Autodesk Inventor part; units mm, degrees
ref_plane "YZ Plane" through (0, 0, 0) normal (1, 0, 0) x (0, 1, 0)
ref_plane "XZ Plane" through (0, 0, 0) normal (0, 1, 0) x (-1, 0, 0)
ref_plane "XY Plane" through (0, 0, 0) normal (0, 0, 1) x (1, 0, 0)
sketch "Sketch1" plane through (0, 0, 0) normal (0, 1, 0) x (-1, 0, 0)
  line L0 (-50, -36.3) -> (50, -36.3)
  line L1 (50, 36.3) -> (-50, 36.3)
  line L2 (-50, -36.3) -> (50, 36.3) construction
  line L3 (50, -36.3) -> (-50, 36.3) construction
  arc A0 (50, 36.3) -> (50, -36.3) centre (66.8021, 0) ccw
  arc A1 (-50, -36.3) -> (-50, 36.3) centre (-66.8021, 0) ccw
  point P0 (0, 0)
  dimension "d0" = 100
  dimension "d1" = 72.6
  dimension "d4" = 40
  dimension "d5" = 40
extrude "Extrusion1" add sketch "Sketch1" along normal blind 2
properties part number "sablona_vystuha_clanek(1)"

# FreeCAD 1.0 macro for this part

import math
import FreeCAD as App
import Part
import Sketcher

V = App.Vector

doc = App.newDocument("Part")
body = doc.addObject("PartDesign::Body", "Body")

# Sketch on XZ plane
sketch1 = body.newObject("Sketcher::SketchObject", "Sketch")
sketch1.AttachmentSupport = (doc.getObject("XZ_Plane"), [""])
sketch1.MapMode = "FlatFace"
sketch1.addGeometry([
    Part.ArcOfCircle(Part.Circle(V(66.8021, 0, 0), V(0, 0, 1), 40.000007), math.radians(114.837897), math.radians(245.162103)),
    Part.LineSegment(V(50, -36.3, 0), V(-50, -36.3, 0)),
    Part.ArcOfCircle(Part.Circle(V(-66.8021, 0, 0), V(0, 0, 1), 40.000007), math.radians(-65.162103), math.radians(65.162103)),
    Part.LineSegment(V(-50, 36.3, 0), V(50, 36.3, 0)),
], False)
sketch1.addConstraint([
    Sketcher.Constraint("Coincident", 0, 2, 1, 1),
    Sketcher.Constraint("Coincident", 1, 2, 2, 1),
    Sketcher.Constraint("Coincident", 2, 2, 3, 1),
    Sketcher.Constraint("Coincident", 3, 2, 0, 1),
    Sketcher.Constraint("Horizontal", 1),
    Sketcher.Constraint("Horizontal", 3),
    Sketcher.Constraint("Equal", 0, 2),
    Sketcher.Constraint("Symmetric", 0, 3, 2, 3, -1, 1),
    Sketcher.Constraint("Symmetric", 1, 2, 2, 2, -1),
    Sketcher.Constraint("Radius", 0, 40.0),
    Sketcher.Constraint("DistanceX", 1, 2, 1, 1, 100.0),
    Sketcher.Constraint("DistanceY", 1, 2, 2, 2, 72.6),
])
pad1 = body.newObject("PartDesign::Pad", "Pad")
pad1.Profile = sketch1
pad1.Length = 2
pad1.Reversed = True

doc.recompute()
